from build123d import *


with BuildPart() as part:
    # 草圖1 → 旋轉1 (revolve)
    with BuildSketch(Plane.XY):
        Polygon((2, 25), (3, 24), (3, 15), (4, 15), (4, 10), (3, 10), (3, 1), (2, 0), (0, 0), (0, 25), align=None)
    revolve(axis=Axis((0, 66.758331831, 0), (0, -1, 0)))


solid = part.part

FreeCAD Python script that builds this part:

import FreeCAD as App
import Part
import Sketcher

V = App.Vector
Q = App.Units.Quantity

doc = App.newDocument("Part")
body = doc.addObject("PartDesign::Body", "Body")

# Sketch on XY plane
sketch1 = body.newObject("Sketcher::SketchObject", "Sketch")
sketch1.AttachmentSupport = (doc.getObject("XY_Plane"), [""])
sketch1.MapMode = "FlatFace"
sketch1.addGeometry([
    Part.LineSegment(V(3, 24, 0), V(2, 25, 0)),  # 0
    Part.LineSegment(V(2, 25, 0), V(0, 25, 0)),  # 1
    Part.LineSegment(V(0, 25, 0), V(0, 0, 0)),  # 2
    Part.LineSegment(V(0, 0, 0), V(2, 0, 0)),  # 3
    Part.LineSegment(V(2, 0, 0), V(3, 1, 0)),  # 4
    Part.LineSegment(V(3, 1, 0), V(3, 10, 0)),  # 5
    Part.LineSegment(V(3, 10, 0), V(4, 10, 0)),  # 6
    Part.LineSegment(V(4, 10, 0), V(4, 15, 0)),  # 7
    Part.LineSegment(V(4, 15, 0), V(3, 15, 0)),  # 8
    Part.LineSegment(V(3, 15, 0), V(3, 24, 0)),  # 9
], False)
sketch1.addConstraint([
    Sketcher.Constraint("Coincident", 0, 2, 1, 1),
    Sketcher.Constraint("Coincident", 1, 2, 2, 1),
    Sketcher.Constraint("Coincident", 2, 2, 3, 1),
    Sketcher.Constraint("Coincident", 3, 2, 4, 1),
    Sketcher.Constraint("Coincident", 4, 2, 5, 1),
    Sketcher.Constraint("Coincident", 5, 2, 6, 1),
    Sketcher.Constraint("Coincident", 6, 2, 7, 1),
    Sketcher.Constraint("Coincident", 7, 2, 8, 1),
    Sketcher.Constraint("Coincident", 8, 2, 9, 1),
    Sketcher.Constraint("Coincident", 9, 2, 0, 1),
    Sketcher.Constraint("Horizontal", 1),
    Sketcher.Constraint("Vertical", 2),
    Sketcher.Constraint("Horizontal", 3),
    Sketcher.Constraint("Vertical", 5),
    Sketcher.Constraint("Horizontal", 6),
    Sketcher.Constraint("Vertical", 7),
    Sketcher.Constraint("Horizontal", 8),
    Sketcher.Constraint("Vertical", 9),
    Sketcher.Constraint("Coincident", 2, 2, -1, 1),
    Sketcher.Constraint("Perpendicular", 0, 4),
    Sketcher.Constraint("Vertical", 0, 2, 3, 2),
    Sketcher.Constraint("Vertical", 5, 2, 8, 2),
    Sketcher.Constraint("Equal", 5, 9),
    Sketcher.Constraint("Equal", 0, 4),
    Sketcher.Constraint("DistanceX", 1, 2, 1, 1, Q("2 mm")),
    Sketcher.Constraint("DistanceX", 6, 1, 6, 2, Q("1 mm")),
    Sketcher.Constraint("DistanceY", 2, 2, 2, 1, Q("25 mm")),
    Sketcher.Constraint("DistanceY", 5, 1, 5, 2, Q("9 mm")),
    Sketcher.Constraint("DistanceY", 7, 1, 7, 2, Q("5 mm")),
])
revolution = body.newObject("PartDesign::Revolution", "Revolution")
revolution.Profile = sketch1
revolution.ReferenceAxis = (sketch1, ["V_Axis"])
revolution.Angle = 360

doc.recompute()
